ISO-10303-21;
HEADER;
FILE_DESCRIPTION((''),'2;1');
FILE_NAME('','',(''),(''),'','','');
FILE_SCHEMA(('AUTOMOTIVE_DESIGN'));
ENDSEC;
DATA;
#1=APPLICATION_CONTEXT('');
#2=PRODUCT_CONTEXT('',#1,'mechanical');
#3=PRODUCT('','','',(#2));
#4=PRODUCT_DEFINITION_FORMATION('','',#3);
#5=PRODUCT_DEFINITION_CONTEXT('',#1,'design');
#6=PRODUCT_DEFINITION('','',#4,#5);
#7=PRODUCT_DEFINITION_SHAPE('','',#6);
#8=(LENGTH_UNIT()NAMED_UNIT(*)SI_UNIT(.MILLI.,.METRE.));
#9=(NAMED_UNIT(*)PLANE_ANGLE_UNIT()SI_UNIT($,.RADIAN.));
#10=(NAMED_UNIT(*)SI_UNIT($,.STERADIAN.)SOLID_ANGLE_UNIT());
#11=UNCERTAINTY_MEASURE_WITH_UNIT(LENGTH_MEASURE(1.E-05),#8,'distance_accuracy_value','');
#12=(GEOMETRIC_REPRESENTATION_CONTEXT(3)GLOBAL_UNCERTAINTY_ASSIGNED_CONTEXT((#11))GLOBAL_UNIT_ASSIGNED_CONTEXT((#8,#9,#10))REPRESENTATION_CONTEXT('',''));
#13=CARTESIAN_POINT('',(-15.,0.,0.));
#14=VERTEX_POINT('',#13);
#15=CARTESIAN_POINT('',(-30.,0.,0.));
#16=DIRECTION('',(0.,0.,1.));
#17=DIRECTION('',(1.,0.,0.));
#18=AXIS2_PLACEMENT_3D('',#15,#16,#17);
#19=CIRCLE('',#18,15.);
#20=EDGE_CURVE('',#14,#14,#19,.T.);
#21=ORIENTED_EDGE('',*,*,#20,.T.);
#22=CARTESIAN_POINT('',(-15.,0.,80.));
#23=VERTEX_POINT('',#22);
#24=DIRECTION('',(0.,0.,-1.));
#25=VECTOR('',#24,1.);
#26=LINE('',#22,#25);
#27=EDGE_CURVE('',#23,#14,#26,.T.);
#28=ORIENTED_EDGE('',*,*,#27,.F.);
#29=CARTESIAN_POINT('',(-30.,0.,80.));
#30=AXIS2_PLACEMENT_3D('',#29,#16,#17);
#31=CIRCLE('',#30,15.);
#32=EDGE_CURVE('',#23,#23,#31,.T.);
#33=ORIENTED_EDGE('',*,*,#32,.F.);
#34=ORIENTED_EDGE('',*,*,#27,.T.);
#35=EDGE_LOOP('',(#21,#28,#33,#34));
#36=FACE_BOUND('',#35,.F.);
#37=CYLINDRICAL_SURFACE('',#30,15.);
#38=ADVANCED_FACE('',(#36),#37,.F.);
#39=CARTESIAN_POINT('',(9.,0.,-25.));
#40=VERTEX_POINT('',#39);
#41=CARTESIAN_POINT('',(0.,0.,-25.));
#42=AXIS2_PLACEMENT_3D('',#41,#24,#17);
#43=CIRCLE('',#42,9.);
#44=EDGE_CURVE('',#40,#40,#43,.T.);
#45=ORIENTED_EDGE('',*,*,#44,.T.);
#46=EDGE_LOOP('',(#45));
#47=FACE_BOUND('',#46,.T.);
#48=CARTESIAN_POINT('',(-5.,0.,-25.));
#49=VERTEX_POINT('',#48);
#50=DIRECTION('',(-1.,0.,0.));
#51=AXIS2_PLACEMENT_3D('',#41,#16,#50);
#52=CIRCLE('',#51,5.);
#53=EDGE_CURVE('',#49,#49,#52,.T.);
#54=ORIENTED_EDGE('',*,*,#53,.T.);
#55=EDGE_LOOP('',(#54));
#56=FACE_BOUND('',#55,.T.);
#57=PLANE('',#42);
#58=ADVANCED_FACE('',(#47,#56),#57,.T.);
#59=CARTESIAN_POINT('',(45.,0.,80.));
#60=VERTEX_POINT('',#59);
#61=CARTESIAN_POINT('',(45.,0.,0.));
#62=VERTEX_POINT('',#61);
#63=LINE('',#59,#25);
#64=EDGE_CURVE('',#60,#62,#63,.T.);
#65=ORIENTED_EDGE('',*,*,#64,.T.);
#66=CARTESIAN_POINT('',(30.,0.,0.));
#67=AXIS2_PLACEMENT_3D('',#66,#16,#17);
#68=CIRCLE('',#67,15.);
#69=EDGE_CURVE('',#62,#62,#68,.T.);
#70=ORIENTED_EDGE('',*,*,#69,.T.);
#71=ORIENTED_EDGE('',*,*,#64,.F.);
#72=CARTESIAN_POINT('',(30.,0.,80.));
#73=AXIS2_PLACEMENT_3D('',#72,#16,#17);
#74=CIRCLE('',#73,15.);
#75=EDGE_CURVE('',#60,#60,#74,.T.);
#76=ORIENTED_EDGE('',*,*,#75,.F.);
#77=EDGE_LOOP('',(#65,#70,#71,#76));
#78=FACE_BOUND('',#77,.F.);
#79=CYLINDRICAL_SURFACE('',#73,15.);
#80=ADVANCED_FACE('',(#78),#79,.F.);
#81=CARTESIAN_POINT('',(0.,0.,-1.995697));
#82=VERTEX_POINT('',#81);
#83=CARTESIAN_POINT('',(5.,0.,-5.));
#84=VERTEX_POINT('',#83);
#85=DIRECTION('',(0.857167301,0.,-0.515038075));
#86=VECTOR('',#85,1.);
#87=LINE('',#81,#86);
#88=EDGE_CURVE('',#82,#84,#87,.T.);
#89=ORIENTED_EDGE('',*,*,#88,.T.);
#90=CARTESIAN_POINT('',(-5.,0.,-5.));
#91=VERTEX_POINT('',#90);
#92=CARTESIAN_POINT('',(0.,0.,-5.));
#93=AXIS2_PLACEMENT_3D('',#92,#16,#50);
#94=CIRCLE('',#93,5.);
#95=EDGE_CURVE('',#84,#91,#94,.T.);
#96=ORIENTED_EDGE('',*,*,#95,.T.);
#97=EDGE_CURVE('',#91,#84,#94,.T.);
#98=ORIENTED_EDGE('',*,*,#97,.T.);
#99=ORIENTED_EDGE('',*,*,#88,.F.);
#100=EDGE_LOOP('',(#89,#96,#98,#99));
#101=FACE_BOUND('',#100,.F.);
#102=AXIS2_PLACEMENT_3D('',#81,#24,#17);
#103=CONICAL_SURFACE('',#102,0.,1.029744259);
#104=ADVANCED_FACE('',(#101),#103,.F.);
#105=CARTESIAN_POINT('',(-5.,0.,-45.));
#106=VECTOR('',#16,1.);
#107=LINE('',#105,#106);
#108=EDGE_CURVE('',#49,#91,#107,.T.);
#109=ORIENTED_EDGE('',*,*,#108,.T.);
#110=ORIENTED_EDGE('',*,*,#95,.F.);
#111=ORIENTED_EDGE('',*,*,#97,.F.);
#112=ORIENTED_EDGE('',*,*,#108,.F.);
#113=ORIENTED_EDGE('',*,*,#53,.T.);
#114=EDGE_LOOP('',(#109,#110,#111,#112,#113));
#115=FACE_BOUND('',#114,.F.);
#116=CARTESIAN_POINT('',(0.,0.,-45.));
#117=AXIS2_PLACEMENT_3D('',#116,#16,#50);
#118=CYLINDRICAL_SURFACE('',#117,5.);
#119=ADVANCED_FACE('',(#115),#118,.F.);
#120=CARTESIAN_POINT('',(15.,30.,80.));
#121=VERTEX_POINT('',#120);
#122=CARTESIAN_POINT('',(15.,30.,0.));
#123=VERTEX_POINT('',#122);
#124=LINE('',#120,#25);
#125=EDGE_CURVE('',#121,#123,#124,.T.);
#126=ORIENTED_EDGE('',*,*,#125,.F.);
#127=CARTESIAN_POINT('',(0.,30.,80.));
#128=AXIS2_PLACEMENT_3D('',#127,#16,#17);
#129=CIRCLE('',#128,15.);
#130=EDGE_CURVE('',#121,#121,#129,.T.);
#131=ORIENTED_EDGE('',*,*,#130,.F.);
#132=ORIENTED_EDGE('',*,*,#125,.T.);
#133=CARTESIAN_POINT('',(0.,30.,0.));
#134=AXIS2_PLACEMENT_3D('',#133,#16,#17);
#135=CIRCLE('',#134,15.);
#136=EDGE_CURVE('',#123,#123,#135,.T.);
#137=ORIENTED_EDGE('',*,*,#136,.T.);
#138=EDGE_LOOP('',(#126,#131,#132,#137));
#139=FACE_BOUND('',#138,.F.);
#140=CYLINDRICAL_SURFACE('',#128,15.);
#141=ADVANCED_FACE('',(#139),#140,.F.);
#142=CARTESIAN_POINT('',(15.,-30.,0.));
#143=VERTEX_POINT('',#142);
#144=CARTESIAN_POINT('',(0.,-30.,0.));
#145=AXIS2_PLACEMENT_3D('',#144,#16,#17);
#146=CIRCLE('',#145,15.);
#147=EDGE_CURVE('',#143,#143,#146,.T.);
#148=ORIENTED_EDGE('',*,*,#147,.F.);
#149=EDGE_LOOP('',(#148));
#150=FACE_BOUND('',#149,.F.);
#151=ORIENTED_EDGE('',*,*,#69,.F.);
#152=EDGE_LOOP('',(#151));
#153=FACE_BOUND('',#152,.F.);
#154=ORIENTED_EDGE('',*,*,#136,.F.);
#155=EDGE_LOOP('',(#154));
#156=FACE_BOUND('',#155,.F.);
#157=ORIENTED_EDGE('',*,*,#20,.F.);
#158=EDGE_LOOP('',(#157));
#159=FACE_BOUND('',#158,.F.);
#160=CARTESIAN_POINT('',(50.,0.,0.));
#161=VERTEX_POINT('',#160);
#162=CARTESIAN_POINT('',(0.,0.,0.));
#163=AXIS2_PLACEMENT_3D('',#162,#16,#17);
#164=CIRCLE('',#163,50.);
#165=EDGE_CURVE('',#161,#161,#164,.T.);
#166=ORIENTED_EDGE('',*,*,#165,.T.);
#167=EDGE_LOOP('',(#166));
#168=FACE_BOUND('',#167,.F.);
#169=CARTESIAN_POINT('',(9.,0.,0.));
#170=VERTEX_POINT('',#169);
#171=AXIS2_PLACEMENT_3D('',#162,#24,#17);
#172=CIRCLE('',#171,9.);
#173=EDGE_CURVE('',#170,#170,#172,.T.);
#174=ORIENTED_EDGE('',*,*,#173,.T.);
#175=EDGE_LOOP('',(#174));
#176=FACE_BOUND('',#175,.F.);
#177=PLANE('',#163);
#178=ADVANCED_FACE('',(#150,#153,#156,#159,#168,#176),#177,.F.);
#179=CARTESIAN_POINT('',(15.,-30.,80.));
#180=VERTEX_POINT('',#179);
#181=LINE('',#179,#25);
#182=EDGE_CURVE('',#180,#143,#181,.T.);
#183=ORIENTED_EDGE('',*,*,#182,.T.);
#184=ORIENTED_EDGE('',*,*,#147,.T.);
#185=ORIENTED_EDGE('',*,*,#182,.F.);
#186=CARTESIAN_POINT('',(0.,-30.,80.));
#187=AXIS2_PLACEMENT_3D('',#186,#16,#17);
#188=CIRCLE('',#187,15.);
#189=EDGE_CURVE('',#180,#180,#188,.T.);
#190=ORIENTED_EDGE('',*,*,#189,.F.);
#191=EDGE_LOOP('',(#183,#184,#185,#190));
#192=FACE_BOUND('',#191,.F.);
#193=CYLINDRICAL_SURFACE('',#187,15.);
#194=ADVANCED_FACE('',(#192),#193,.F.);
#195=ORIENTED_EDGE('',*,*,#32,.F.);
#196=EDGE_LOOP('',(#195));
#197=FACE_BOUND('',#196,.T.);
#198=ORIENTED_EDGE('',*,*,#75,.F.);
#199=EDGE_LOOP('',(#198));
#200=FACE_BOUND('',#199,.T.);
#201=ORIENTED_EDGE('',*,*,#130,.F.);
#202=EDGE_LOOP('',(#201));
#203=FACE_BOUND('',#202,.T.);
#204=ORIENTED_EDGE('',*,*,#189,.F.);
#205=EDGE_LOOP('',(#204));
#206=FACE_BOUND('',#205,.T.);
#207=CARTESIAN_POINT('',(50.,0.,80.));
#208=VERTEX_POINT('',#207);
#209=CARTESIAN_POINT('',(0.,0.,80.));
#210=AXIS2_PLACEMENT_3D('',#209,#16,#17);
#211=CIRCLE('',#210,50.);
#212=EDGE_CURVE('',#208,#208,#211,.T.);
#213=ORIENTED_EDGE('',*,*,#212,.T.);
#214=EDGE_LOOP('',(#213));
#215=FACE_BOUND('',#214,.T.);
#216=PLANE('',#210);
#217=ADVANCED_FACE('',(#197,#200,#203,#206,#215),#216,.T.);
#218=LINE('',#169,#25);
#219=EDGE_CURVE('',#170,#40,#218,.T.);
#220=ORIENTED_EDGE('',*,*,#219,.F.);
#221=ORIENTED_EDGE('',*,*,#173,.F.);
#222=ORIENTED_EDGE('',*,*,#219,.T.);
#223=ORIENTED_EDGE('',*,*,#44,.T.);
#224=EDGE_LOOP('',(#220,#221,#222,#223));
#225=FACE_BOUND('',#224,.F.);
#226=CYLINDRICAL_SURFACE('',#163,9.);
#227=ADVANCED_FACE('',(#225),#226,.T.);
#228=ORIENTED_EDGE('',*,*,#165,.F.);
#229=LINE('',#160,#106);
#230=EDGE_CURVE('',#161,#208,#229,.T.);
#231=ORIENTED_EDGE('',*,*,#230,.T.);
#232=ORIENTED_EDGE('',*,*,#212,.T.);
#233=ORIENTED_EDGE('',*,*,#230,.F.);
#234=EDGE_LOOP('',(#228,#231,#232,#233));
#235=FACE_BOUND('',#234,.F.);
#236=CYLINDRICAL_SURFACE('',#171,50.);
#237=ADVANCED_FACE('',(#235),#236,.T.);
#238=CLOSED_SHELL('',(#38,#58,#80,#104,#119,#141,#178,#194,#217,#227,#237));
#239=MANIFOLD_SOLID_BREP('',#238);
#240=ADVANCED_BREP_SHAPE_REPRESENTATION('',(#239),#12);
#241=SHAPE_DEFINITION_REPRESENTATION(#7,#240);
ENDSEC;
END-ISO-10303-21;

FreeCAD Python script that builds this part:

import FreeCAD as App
import Part
import Sketcher

V = App.Vector
Q = App.Units.Quantity

doc = App.newDocument("Part")
body = doc.addObject("PartDesign::Body", "Body")

sketch1 = body.newObject("Sketcher::SketchObject", "Sketch")
sketch1.AttachmentSupport = (doc.getObject("XY_Plane"), [""])
sketch1.MapMode = "FlatFace"
sketch1.addGeometry(Part.Circle(V(0, 0, 0), V(0, 0, 1), 50), False)
sketch1.addConstraint(Sketcher.Constraint("Coincident", 0, 3, -1, 1))
sketch1.addConstraint(Sketcher.Constraint("Diameter", 0, Q("100 mm")))
pad1 = body.newObject("PartDesign::Pad", "Pad")
pad1.Profile = sketch1
pad1.Length = 80

sketch2 = body.newObject("Sketcher::SketchObject", "Sketch001")
sketch2.AttachmentSupport = (doc.getObject("XY_Plane"), [""])
sketch2.MapMode = "FlatFace"
sketch2.AttachmentOffset = App.Placement(V(0, 0, 80), App.Rotation())
sketch2.addGeometry(Part.Circle(V(0, 30, 0), V(0, 0, 1), 15), False)
sketch2.addGeometry(Part.Circle(V(-30, 0, 0), V(0, 0, 1), 15), False)
sketch2.addGeometry(Part.Circle(V(0, -30, 0), V(0, 0, 1), 15), False)
sketch2.addGeometry(Part.Circle(V(30, 0, 0), V(0, 0, 1), 15), False)
sketch2.addConstraint(Sketcher.Constraint("Equal", 0, 1))
sketch2.addConstraint(Sketcher.Constraint("Equal", 1, 2))
sketch2.addConstraint(Sketcher.Constraint("Equal", 2, 3))
sketch2.addConstraint(Sketcher.Constraint("Symmetric", 0, 3, 2, 3, -1, 1))
sketch2.addConstraint(Sketcher.Constraint("Symmetric", 1, 3, 3, 3, -1, 1))
sketch2.addConstraint(Sketcher.Constraint("PointOnObject", 0, 3, -2))
sketch2.addConstraint(Sketcher.Constraint("PointOnObject", 1, 3, -1))
sketch2.addConstraint(Sketcher.Constraint("Diameter", 0, Q("30 mm")))
sketch2.addConstraint(Sketcher.Constraint("DistanceY", -1, 1, 0, 3, Q("30 mm")))
sketch2.addConstraint(Sketcher.Constraint("DistanceX", 1, 3, -1, 1, Q("30 mm")))
pocket1 = body.newObject("PartDesign::Pocket", "Pocket")
pocket1.Profile = sketch2
pocket1.Type = "ThroughAll"

sketch3 = body.newObject("Sketcher::SketchObject", "Sketch002")
sketch3.AttachmentSupport = (doc.getObject("XY_Plane"), [""])
sketch3.MapMode = "FlatFace"
sketch3.addGeometry(Part.Circle(V(0, 0, 0), V(0, 0, 1), 9), False)
sketch3.addConstraint(Sketcher.Constraint("Coincident", 0, 3, -1, 1))
sketch3.addConstraint(Sketcher.Constraint("Diameter", 0, Q("18 mm")))
pad2 = body.newObject("PartDesign::Pad", "Pad001")
pad2.Profile = sketch3
pad2.Length = 25
pad2.Reversed = True

sketch4 = body.newObject("Sketcher::SketchObject", "Sketch003")
sketch4.AttachmentSupport = (doc.getObject("XY_Plane"), [""])
sketch4.MapMode = "FlatFace"
sketch4.AttachmentOffset = App.Placement(V(0, 0, -25), App.Rotation())
sketch4.addGeometry(Part.Circle(V(0, 0, 0), V(0, 0, 1), 5), False)
sketch4.addConstraint(Sketcher.Constraint("Coincident", 0, 3, -1, 1))
sketch4.addConstraint(Sketcher.Constraint("Diameter", 0, Q("10 mm")))
doc.recompute()
hole = body.newObject("PartDesign::Hole", "Hole")
hole.Profile = sketch4
hole.ThreadType = "None"
hole.Diameter = 10
hole.DepthType = "Dimension"
hole.Depth = 20
hole.DrillPoint = "Angled"
hole.DrillPointAngle = 118
hole.Reversed = True

doc.recompute()
